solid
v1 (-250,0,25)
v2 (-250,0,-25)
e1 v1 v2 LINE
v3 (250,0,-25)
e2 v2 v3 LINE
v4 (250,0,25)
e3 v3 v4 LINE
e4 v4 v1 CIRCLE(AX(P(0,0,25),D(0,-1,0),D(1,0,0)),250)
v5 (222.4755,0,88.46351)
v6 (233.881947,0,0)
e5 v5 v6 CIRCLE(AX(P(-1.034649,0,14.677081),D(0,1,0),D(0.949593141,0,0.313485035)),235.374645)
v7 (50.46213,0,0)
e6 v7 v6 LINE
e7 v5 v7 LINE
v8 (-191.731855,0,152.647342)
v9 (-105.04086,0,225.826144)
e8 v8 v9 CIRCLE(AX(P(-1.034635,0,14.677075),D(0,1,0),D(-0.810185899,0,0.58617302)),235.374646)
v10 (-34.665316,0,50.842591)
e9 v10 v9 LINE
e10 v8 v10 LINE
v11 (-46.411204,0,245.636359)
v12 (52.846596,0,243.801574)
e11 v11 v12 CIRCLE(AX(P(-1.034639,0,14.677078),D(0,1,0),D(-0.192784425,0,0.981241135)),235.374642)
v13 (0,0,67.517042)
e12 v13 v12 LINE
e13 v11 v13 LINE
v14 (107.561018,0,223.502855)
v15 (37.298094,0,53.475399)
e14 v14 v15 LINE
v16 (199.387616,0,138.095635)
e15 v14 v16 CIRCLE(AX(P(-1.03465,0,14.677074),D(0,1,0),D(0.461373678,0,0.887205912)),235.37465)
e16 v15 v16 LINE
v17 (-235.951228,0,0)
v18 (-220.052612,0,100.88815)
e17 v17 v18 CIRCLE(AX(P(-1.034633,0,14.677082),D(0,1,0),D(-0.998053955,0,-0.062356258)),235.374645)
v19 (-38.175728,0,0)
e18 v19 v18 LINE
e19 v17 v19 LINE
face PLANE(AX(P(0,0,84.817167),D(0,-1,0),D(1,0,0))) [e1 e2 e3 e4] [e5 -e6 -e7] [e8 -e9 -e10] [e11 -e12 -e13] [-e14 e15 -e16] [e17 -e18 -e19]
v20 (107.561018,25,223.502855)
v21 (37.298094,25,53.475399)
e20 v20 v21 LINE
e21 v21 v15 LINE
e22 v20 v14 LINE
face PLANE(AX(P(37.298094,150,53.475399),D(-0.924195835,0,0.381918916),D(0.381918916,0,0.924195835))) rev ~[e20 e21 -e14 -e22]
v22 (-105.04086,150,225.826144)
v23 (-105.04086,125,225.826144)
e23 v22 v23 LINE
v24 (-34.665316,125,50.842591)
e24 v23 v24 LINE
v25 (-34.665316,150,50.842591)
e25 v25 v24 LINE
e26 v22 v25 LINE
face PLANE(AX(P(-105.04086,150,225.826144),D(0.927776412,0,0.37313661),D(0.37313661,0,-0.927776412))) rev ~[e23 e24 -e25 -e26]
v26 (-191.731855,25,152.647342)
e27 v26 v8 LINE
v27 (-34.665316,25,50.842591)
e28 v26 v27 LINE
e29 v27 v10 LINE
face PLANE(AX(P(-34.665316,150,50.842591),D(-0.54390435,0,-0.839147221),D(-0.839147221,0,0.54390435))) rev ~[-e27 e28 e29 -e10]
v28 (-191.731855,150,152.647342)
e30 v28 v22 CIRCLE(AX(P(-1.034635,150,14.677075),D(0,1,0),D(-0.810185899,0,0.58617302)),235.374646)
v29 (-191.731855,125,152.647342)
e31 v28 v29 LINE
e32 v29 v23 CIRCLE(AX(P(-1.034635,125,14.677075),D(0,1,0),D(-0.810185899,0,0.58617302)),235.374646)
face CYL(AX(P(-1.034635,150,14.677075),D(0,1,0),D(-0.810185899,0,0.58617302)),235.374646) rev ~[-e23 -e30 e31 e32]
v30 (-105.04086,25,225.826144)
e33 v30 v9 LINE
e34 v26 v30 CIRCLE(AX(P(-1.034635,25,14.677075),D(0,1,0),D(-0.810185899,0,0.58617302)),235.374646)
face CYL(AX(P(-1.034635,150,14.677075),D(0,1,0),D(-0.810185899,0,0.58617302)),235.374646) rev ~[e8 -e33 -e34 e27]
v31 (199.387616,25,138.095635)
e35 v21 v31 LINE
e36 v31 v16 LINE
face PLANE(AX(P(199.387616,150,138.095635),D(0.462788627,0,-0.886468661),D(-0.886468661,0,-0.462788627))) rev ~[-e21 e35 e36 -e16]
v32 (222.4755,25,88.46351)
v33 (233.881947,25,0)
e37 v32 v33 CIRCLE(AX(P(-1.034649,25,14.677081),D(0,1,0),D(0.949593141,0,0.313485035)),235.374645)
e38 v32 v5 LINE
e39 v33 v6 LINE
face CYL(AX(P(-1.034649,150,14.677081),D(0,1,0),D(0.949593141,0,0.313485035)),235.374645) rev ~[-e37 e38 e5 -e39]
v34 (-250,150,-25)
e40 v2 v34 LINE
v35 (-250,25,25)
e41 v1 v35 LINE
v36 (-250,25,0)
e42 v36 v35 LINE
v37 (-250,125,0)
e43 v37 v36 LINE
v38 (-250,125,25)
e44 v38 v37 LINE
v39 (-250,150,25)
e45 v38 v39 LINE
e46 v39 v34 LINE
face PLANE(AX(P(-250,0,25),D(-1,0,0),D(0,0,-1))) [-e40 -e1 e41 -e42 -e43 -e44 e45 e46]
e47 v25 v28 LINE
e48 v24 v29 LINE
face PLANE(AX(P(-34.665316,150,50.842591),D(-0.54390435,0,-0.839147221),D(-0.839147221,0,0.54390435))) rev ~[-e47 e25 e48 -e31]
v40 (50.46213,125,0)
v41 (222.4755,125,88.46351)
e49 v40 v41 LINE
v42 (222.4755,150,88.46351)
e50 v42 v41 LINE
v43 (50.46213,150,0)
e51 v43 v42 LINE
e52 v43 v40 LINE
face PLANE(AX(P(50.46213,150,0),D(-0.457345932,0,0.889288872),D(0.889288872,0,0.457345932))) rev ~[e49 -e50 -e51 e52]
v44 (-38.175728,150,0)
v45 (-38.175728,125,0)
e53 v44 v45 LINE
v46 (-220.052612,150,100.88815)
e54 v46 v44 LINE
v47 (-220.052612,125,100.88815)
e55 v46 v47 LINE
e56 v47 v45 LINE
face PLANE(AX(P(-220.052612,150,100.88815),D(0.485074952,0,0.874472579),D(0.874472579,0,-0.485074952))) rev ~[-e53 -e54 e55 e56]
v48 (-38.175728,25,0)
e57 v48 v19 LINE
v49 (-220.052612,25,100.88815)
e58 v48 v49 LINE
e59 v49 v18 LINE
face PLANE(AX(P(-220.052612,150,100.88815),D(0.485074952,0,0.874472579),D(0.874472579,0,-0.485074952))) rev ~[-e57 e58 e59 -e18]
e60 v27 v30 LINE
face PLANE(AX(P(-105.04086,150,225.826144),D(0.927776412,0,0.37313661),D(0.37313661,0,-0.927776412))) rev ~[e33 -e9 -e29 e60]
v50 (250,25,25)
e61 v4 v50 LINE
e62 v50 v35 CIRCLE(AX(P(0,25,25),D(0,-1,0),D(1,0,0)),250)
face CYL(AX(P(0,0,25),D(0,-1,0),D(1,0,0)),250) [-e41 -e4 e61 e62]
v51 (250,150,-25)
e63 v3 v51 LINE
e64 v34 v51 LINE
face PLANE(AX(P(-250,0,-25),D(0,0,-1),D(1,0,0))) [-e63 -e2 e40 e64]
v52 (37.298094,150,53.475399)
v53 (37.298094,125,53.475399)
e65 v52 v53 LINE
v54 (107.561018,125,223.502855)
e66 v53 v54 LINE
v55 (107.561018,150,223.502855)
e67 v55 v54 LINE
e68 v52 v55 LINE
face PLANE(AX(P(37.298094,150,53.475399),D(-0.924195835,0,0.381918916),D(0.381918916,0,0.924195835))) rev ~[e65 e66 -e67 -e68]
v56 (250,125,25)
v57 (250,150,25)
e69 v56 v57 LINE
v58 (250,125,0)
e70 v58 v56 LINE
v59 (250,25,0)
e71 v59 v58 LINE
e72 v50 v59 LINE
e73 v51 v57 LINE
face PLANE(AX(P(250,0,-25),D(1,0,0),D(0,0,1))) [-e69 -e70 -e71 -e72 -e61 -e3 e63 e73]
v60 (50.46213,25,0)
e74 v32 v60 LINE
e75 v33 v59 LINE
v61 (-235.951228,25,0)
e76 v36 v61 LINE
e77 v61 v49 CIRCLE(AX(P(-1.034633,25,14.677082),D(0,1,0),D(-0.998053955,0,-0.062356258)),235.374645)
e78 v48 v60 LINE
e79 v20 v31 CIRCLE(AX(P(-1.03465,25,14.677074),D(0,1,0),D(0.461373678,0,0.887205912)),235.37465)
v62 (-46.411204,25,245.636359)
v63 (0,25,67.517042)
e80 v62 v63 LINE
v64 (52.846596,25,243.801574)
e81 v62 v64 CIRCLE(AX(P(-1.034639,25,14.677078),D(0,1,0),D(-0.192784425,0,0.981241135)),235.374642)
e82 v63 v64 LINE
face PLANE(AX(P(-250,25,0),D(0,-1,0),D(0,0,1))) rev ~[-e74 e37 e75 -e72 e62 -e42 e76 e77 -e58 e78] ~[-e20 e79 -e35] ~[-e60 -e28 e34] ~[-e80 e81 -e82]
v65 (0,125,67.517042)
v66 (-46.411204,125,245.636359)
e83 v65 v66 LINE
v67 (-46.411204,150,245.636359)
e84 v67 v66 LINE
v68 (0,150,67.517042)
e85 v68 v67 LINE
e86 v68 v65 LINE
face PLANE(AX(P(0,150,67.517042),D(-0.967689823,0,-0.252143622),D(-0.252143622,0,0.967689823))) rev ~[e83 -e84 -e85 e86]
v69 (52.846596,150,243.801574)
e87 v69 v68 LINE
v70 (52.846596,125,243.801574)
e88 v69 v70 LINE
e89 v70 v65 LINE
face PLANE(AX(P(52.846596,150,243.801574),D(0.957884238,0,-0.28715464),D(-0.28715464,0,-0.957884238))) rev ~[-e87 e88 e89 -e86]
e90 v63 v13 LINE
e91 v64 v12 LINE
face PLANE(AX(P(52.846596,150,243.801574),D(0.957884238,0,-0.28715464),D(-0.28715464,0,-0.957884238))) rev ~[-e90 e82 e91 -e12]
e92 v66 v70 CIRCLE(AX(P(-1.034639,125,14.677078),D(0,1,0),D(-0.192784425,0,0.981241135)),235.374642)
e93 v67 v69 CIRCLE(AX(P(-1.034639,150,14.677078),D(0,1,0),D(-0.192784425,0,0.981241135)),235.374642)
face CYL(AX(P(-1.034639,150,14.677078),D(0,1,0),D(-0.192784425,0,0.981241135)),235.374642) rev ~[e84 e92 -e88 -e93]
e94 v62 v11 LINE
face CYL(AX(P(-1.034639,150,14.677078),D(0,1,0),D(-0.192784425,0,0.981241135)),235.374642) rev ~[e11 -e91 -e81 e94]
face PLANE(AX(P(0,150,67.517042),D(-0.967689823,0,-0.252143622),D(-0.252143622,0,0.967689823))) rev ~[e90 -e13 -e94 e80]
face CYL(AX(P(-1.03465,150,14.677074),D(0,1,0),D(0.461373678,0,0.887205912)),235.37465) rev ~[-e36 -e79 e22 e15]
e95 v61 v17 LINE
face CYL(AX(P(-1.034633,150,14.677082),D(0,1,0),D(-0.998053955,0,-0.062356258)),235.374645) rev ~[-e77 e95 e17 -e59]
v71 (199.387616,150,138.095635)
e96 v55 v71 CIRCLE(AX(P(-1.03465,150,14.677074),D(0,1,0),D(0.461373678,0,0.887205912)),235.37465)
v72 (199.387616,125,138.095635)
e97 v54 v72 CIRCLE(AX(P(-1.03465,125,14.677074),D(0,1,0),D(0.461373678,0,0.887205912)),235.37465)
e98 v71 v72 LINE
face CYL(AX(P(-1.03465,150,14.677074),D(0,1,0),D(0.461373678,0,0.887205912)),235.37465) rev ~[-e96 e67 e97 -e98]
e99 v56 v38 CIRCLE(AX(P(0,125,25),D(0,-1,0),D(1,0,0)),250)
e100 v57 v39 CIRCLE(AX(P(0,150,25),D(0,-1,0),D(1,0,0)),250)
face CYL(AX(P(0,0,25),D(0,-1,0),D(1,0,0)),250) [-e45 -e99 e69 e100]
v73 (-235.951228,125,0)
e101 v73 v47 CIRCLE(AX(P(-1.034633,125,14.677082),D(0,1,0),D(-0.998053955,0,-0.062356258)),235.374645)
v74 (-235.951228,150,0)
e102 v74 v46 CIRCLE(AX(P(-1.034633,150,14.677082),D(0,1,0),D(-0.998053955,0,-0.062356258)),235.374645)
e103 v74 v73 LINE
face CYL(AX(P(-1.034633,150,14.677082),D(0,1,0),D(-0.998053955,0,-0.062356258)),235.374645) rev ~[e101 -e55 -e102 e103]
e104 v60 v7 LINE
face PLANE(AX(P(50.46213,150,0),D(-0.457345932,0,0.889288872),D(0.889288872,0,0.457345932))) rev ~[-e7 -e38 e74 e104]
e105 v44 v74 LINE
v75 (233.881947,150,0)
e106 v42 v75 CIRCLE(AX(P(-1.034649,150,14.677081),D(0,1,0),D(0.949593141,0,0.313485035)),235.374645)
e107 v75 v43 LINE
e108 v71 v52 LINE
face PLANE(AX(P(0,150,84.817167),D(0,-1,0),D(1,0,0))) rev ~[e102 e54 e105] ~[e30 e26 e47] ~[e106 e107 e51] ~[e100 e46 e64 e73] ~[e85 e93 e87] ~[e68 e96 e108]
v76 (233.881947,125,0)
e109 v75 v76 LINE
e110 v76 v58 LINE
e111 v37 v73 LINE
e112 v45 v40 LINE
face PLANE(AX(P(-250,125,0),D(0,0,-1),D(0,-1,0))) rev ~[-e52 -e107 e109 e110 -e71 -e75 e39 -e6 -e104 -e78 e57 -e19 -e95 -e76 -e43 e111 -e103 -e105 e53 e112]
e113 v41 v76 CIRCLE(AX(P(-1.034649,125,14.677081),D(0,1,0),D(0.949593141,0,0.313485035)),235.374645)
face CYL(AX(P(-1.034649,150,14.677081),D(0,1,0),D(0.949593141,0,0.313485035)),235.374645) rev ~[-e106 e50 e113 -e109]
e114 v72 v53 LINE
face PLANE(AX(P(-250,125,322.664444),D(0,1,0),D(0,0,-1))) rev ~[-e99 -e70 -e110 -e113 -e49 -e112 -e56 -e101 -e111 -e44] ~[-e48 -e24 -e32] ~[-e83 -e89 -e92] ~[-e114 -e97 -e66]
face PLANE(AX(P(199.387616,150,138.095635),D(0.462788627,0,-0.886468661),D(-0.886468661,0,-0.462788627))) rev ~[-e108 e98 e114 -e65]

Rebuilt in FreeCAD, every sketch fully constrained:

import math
import FreeCAD as App
import Part
import Sketcher
from FreeCAD import Vector
Q = App.Units.Quantity

doc = App.newDocument("Part")
body = doc.addObject("PartDesign::Body", "Body")

sketch1 = body.newObject("Sketcher::SketchObject", "Sketch")
sketch1.AttachmentSupport = (doc.getObject("XZ_Plane"), [""])
sketch1.MapMode = "FlatFace"
sketch1.addGeometry(Part.LineSegment(Vector(-250, -25, 0), Vector(250, -25, 0)), False)
sketch1.addGeometry(Part.LineSegment(Vector(250, -25, 0), Vector(250, 25, 0)), False)
sketch1.addGeometry(Part.ArcOfCircle(Part.Circle(Vector(0, 25, 0), Vector(0, 0, 1), 250), math.radians(0), math.radians(180)), False)
sketch1.addGeometry(Part.LineSegment(Vector(-250, 25, 0), Vector(-250, -25, 0)), False)
sketch1.addConstraint(Sketcher.Constraint("Coincident", 0, 2, 1, 1))
sketch1.addConstraint(Sketcher.Constraint("Tangent", 1, 2, 2, 1))
sketch1.addConstraint(Sketcher.Constraint("Tangent", 2, 2, 3, 1))
sketch1.addConstraint(Sketcher.Constraint("Coincident", 3, 2, 0, 1))
sketch1.addConstraint(Sketcher.Constraint("Horizontal", 0))
sketch1.addConstraint(Sketcher.Constraint("Vertical", 1))
sketch1.addConstraint(Sketcher.Constraint("Vertical", 3))
sketch1.addConstraint(Sketcher.Constraint("Symmetric", 0, 2, 2, 2, -1, 1))
sketch1.addConstraint(Sketcher.Constraint("Radius", 2, Q("250 mm")))
sketch1.addConstraint(Sketcher.Constraint("DistanceY", 1, 1, 1, 2, Q("50 mm")))
pad1 = body.newObject("PartDesign::Pad", "Pad")
pad1.Profile = sketch1
pad1.Length = 150
pad1.Reversed = True

sketch2 = body.newObject("Sketcher::SketchObject", "Sketch001")
sketch2.AttachmentSupport = (doc.getObject("YZ_Plane"), [""])
sketch2.MapMode = "FlatFace"
sketch2.AttachmentOffset = App.Placement(Vector(0, 0, -250), App.Rotation())
sketch2.addGeometry(Part.LineSegment(Vector(125, 323, 0), Vector(125, 0, 0)), False)
sketch2.addGeometry(Part.LineSegment(Vector(125, 0, 0), Vector(25, 0, 0)), False)
sketch2.addGeometry(Part.LineSegment(Vector(25, 0, 0), Vector(25, 323, 0)), False)
sketch2.addGeometry(Part.LineSegment(Vector(25, 323, 0), Vector(125, 323, 0)), False)
sketch2.addConstraint(Sketcher.Constraint("Coincident", 0, 2, 1, 1))
sketch2.addConstraint(Sketcher.Constraint("Coincident", 1, 2, 2, 1))
sketch2.addConstraint(Sketcher.Constraint("Coincident", 2, 2, 3, 1))
sketch2.addConstraint(Sketcher.Constraint("Coincident", 3, 2, 0, 1))
sketch2.addConstraint(Sketcher.Constraint("Vertical", 0))
sketch2.addConstraint(Sketcher.Constraint("Horizontal", 1))
sketch2.addConstraint(Sketcher.Constraint("Vertical", 2))
sketch2.addConstraint(Sketcher.Constraint("Horizontal", 3))
sketch2.addConstraint(Sketcher.Constraint("PointOnObject", 0, 2, -1))
sketch2.addConstraint(Sketcher.Constraint("DistanceX", 1, 2, 1, 1, Q("100 mm")))
sketch2.addConstraint(Sketcher.Constraint("DistanceX", -1, 1, 0, 2, Q("125 mm")))
sketch2.addConstraint(Sketcher.Constraint("DistanceY", 0, 2, 0, 1, Q("322.664444 mm")))
pocket1 = body.newObject("PartDesign::Pocket", "Pocket")
pocket1.Profile = sketch2
pocket1.Length = 10000
pocket1.Reversed = True

sketch3 = body.newObject("Sketcher::SketchObject", "Sketch002")
sketch3.AttachmentSupport = (doc.getObject("XZ_Plane"), [""])
sketch3.MapMode = "FlatFace"
sketch3.AttachmentOffset = App.Placement(Vector(0, 0, -150), App.Rotation())
sketch3.addGeometry(Part.LineSegment(Vector(234, 0, 0), Vector(50, 0, 0)), False)
sketch3.addGeometry(Part.LineSegment(Vector(50, 0, 0), Vector(222, 88, 0)), False)
sketch3.addGeometry(Part.ArcOfCircle(Part.Circle(Vector(-1, 15, 0), Vector(0, 0, 1), 235), math.radians(-4), math.radians(18)), False)
sketch3.addGeometry(Part.LineSegment(Vector(37, 53, 0), Vector(108, 224, 0)), False)
sketch3.addGeometry(Part.ArcOfCircle(Part.Circle(Vector(-1, 15, 0), Vector(0, 0, 1), 235), math.radians(32), math.radians(63)), False)
sketch3.addGeometry(Part.LineSegment(Vector(199, 138, 0), Vector(37, 53, 0)), False)
sketch3.addGeometry(Part.LineSegment(Vector(0, 68, 0), Vector(-46, 246, 0)), False)
sketch3.addGeometry(Part.ArcOfCircle(Part.Circle(Vector(-1, 15, 0), Vector(0, 0, 1), 235), math.radians(77), math.radians(101)), False)
sketch3.addGeometry(Part.LineSegment(Vector(53, 244, 0), Vector(0, 68, 0)), False)
sketch3.addGeometry(Part.LineSegment(Vector(-35, 51, 0), Vector(-192, 153, 0)), False)
sketch3.addGeometry(Part.ArcOfCircle(Part.Circle(Vector(-1, 15, 0), Vector(0, 0, 1), 235), math.radians(116), math.radians(144)), False)
sketch3.addGeometry(Part.LineSegment(Vector(-105, 226, 0), Vector(-35, 51, 0)), False)
sketch3.addGeometry(Part.ArcOfCircle(Part.Circle(Vector(-1, 15, 0), Vector(0, 0, 1), 235), math.radians(159), math.radians(184)), False)
sketch3.addGeometry(Part.LineSegment(Vector(-220, 101, 0), Vector(-38, 0, 0)), False)
sketch3.addGeometry(Part.LineSegment(Vector(-38, 0, 0), Vector(-236, 0, 0)), False)
sketch3.addConstraint(Sketcher.Constraint("Coincident", 0, 2, 1, 1))
sketch3.addConstraint(Sketcher.Constraint("Coincident", 1, 2, 2, 2))
sketch3.addConstraint(Sketcher.Constraint("Coincident", 2, 1, 0, 1))
sketch3.addConstraint(Sketcher.Constraint("Coincident", 3, 2, 4, 2))
sketch3.addConstraint(Sketcher.Constraint("Coincident", 4, 1, 5, 1))
sketch3.addConstraint(Sketcher.Constraint("Coincident", 5, 2, 3, 1))
sketch3.addConstraint(Sketcher.Constraint("Coincident", 6, 2, 7, 2))
sketch3.addConstraint(Sketcher.Constraint("Coincident", 7, 1, 8, 1))
sketch3.addConstraint(Sketcher.Constraint("Coincident", 8, 2, 6, 1))
sketch3.addConstraint(Sketcher.Constraint("Coincident", 9, 2, 10, 2))
sketch3.addConstraint(Sketcher.Constraint("Coincident", 10, 1, 11, 1))
sketch3.addConstraint(Sketcher.Constraint("Coincident", 11, 2, 9, 1))
sketch3.addConstraint(Sketcher.Constraint("Coincident", 12, 1, 13, 1))
sketch3.addConstraint(Sketcher.Constraint("Coincident", 13, 2, 14, 1))
sketch3.addConstraint(Sketcher.Constraint("Coincident", 14, 2, 12, 2))
sketch3.addConstraint(Sketcher.Constraint("Horizontal", 0))
sketch3.addConstraint(Sketcher.Constraint("Horizontal", 14))
sketch3.addConstraint(Sketcher.Constraint("Coincident", 4, 3, 2, 3))
sketch3.addConstraint(Sketcher.Constraint("Coincident", 10, 3, 7, 3))
sketch3.addConstraint(Sketcher.Constraint("Coincident", 12, 3, 7, 3))
sketch3.addConstraint(Sketcher.Constraint("Equal", 2, 10))
sketch3.addConstraint(Sketcher.Constraint("Equal", 10, 12))
sketch3.addConstraint(Sketcher.Constraint("PointOnObject", 0, 2, -1))
sketch3.addConstraint(Sketcher.Constraint("PointOnObject", 8, 2, -2))
sketch3.addConstraint(Sketcher.Constraint("PointOnObject", 13, 2, -1))
sketch3.addConstraint(Sketcher.Constraint("Horizontal", 4, 3, 10, 3))
sketch3.addConstraint(Sketcher.Constraint("Radius", 4, Q("235.37465 mm")))
sketch3.addConstraint(Sketcher.Constraint("DistanceX", 14, 2, 14, 1, Q("197.7755 mm")))
sketch3.addConstraint(Sketcher.Constraint("Radius", 2, Q("235.374645 mm")))
sketch3.addConstraint(Sketcher.Constraint("Radius", 7, Q("235.374642 mm")))
sketch3.addConstraint(Sketcher.Constraint("DistanceX", -1, 1, 1, 2, Q("222.4755 mm")))
sketch3.addConstraint(Sketcher.Constraint("DistanceY", -1, 1, 5, 2, Q("53.475399 mm")))
sketch3.addConstraint(Sketcher.Constraint("DistanceX", 6, 2, 7, 1, Q("99.2578 mm")))
sketch3.addConstraint(Sketcher.Constraint("DistanceY", 8, 2, 9, 2, Q("85.1303 mm")))
sketch3.addConstraint(Sketcher.Constraint("Distance", 6, Q("184.066539 mm")))
sketch3.addConstraint(Sketcher.Constraint("Distance", 8, Q("184.03532 mm")))
sketch3.addConstraint(Sketcher.Constraint("DistanceX", 0, 2, 0, 1, Q("183.419817 mm")))
sketch3.addConstraint(Sketcher.Constraint("DistanceX", 2, 3, -1, 1, Q("1.034649 mm")))
sketch3.addConstraint(Sketcher.Constraint("DistanceY", -1, 1, 2, 3, Q("14.677081 mm")))
sketch3.addConstraint(Sketcher.Constraint("DistanceX", 7, 3, -1, 1, Q("1.034639 mm")))
sketch3.addConstraint(Sketcher.Constraint("DistanceX", -1, 1, 3, 2, Q("107.561018 mm")))
sketch3.addConstraint(Sketcher.Constraint("DistanceX", 10, 1, -1, 1, Q("105.04086 mm")))
sketch3.addConstraint(Sketcher.Constraint("DistanceY", -1, 1, 11, 2, Q("50.842591 mm")))
sketch3.addConstraint(Sketcher.Constraint("DistanceY", -1, 1, 12, 1, Q("100.88815 mm")))
sketch3.addConstraint(Sketcher.Constraint("DistanceY", 4, 1, 3, 2, Q("85.40722 mm")))
sketch3.addConstraint(Sketcher.Constraint("DistanceX", 10, 3, 5, 2, Q("38.332729 mm")))
sketch3.addConstraint(Sketcher.Constraint("DistanceX", 14, 2, 11, 2, Q("201.285912 mm")))
pocket2 = body.newObject("PartDesign::Pocket", "Pocket001")
pocket2.Profile = sketch3
pocket2.Length = 10000
pocket2.Reversed = True

doc.recompute()
